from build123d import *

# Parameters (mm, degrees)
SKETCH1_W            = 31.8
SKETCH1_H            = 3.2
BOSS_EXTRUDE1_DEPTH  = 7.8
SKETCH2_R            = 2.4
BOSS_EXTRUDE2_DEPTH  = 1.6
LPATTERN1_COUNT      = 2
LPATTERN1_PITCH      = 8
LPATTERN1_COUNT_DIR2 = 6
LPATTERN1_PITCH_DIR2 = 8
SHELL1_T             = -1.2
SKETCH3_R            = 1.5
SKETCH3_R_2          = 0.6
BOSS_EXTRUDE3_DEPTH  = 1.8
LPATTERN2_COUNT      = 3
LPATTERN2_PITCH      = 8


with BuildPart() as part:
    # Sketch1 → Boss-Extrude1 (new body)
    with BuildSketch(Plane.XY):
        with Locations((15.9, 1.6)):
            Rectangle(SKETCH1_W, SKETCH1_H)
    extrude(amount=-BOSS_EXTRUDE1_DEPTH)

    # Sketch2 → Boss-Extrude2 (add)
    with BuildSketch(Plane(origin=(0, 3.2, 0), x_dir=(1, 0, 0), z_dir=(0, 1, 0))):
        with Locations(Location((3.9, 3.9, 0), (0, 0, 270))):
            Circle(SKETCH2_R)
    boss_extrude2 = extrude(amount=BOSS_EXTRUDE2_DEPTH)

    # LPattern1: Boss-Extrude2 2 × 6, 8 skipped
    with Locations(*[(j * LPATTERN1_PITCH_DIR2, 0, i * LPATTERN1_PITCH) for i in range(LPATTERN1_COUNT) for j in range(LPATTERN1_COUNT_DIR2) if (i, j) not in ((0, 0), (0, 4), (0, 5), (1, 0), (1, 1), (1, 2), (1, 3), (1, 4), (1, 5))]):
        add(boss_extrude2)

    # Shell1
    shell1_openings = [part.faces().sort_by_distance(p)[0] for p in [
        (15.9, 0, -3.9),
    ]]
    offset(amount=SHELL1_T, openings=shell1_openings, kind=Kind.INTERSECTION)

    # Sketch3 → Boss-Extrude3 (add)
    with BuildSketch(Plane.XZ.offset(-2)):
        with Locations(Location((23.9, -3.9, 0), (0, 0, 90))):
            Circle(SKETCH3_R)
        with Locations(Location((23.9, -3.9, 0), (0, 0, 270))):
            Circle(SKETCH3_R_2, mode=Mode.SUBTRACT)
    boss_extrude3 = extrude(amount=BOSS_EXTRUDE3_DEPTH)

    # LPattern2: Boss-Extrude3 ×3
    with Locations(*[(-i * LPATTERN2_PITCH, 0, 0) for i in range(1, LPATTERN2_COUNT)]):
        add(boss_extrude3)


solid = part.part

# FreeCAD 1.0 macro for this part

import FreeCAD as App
import Part
import Sketcher


def faces_at(feature, points):
    """Names of the faces that lie closest to the given points."""
    faces = feature.Shape.Faces
    near = lambda p: min(range(len(faces)), key=lambda i: faces[i].distToShape(Part.Vertex(*p))[0])
    return sorted({f"Face{near(p) + 1}" for p in points})


def add_polygon(sketch, points):
    """Adds a closed chain of lines whose ends are joined by coincident constraints."""
    first, n = sketch.GeometryCount, len(points)
    for a, b in zip(points, points[1:] + points[:1]):
        sketch.addGeometry(Part.LineSegment(App.Vector(*a, 0), App.Vector(*b, 0)), False)
    for i in range(n):
        sketch.addConstraint(Sketcher.Constraint("Coincident", first + i, 2, first + (i + 1) % n, 1))

doc = App.newDocument("Part")
body = doc.addObject("PartDesign::Body", "Body")

sketch1 = body.newObject("Sketcher::SketchObject", "Sketch")
sketch1.AttachmentSupport = (doc.getObject("XY_Plane"), [""])
sketch1.MapMode = "FlatFace"
add_polygon(sketch1, [(0, 3.2), (0, 0), (31.8, 0), (31.8, 3.2)])
sketch1.addConstraint([
    Sketcher.Constraint("Vertical", 0),
    Sketcher.Constraint("Horizontal", 1),
    Sketcher.Constraint("Vertical", 2),
    Sketcher.Constraint("Horizontal", 3),
    Sketcher.Constraint("Coincident", 0, 2, -1, 1),
    Sketcher.Constraint("DistanceX", 1, 1, 1, 2, 31.8),
    Sketcher.Constraint("DistanceY", 0, 2, 0, 1, 3.2),
])
pad1 = body.newObject("PartDesign::Pad", "Pad")
pad1.Profile = sketch1
pad1.Length = 7.8
pad1.Reversed = True

sketch2 = body.newObject("Sketcher::SketchObject", "Sketch001")
sketch2.AttachmentSupport = (doc.getObject("XZ_Plane"), [""])
sketch2.MapMode = "FlatFace"
sketch2.AttachmentOffset = App.Placement(App.Vector(0, 0, -3.2), App.Rotation())
sketch2.addGeometry(Part.Circle(App.Vector(3.9, -3.9, 0), App.Vector(0, 0, 1), 2.4), False)
sketch2.addConstraint([
    Sketcher.Constraint("Diameter", 0, 4.8),
    Sketcher.Constraint("DistanceX", -1, 1, 0, 3, 3.9),
    Sketcher.Constraint("DistanceY", 0, 3, -1, 1, 3.9),
])
pad2 = body.newObject("PartDesign::Pad", "Pad001")
pad2.Profile = sketch2
pad2.Length = 1.6
pad2.Reversed = True
doc.recompute()

linearpattern = body.newObject("PartDesign::LinearPattern", "LinearPattern")
linearpattern.Originals = [pad2]
linearpattern.Direction = (doc.getObject("X_Axis"), [""])
linearpattern.Mode = "offset"
linearpattern.Offset = 8
linearpattern.Occurrences = 4
body.Tip = linearpattern
doc.recompute()

thickness = body.newObject("PartDesign::Thickness", "Thickness")
thickness.Base = (linearpattern, faces_at(linearpattern, [(15.9, 0, -3.9)]))
thickness.Value = 1.2
thickness.Reversed = True
thickness.Join = "Intersection"

sketch3 = body.newObject("Sketcher::SketchObject", "Sketch002")
sketch3.AttachmentSupport = (doc.getObject("XZ_Plane"), [""])
sketch3.MapMode = "FlatFace"
sketch3.AttachmentOffset = App.Placement(App.Vector(0, 0, -2), App.Rotation())
sketch3.addGeometry([
    Part.Circle(App.Vector(23.9, -3.9, 0), App.Vector(0, 0, 1), 1.5),
    Part.Circle(App.Vector(23.9, -3.9, 0), App.Vector(0, 0, 1), 0.6),
], False)
sketch3.addConstraint([
    Sketcher.Constraint("Coincident", 1, 3, 0, 3),
    Sketcher.Constraint("Diameter", 0, 3.0),
    Sketcher.Constraint("Diameter", 1, 1.2),
    Sketcher.Constraint("DistanceX", -1, 1, 0, 3, 23.9),
    Sketcher.Constraint("DistanceY", 0, 3, -1, 1, 3.9),
])
pad3 = body.newObject("PartDesign::Pad", "Pad002")
pad3.Profile = sketch3
pad3.Length = 1.8
doc.recompute()

linearpattern2 = body.newObject("PartDesign::LinearPattern", "LinearPattern001")
linearpattern2.Originals = [pad3]
linearpattern2.Direction = (doc.getObject("X_Axis"), [""])
linearpattern2.Mode = "offset"
linearpattern2.Offset = 8
linearpattern2.Occurrences = 3
linearpattern2.Reversed = True
body.Tip = linearpattern2

doc.recompute()
